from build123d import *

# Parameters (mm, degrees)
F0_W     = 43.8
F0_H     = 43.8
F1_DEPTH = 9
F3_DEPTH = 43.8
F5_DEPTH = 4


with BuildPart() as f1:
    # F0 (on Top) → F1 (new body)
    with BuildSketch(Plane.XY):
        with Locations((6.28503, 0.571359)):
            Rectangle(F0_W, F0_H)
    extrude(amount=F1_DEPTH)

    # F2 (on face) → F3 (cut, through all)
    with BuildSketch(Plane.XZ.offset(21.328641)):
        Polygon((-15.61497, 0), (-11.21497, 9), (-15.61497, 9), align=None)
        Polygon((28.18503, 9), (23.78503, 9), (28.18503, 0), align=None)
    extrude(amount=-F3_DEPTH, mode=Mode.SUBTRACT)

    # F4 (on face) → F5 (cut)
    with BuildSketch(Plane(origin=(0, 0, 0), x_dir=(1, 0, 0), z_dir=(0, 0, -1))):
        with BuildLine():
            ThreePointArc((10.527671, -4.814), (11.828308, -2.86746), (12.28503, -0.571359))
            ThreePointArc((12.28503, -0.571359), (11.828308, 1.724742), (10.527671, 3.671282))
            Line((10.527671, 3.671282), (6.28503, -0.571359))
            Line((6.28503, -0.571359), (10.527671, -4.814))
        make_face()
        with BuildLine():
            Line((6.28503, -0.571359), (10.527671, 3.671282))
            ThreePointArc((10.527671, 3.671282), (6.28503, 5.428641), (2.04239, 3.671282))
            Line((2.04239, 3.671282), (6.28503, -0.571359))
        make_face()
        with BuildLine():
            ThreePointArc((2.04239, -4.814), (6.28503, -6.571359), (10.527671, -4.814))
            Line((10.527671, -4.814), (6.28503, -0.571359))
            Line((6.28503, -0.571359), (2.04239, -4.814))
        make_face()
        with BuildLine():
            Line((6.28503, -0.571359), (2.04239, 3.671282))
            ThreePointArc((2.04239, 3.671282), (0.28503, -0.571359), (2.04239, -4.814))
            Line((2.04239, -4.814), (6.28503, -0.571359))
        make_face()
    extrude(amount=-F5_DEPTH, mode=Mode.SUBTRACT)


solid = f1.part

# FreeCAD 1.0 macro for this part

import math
import FreeCAD as App
import Part
import Sketcher
from FreeCAD import Vector
Q = App.Units.Quantity


def add_polygon(sketch, points):
    """Adds a closed chain of lines whose ends are joined by coincident constraints."""
    first, n = sketch.GeometryCount, len(points)
    for a, b in zip(points, points[1:] + points[:1]):
        sketch.addGeometry(Part.LineSegment(App.Vector(*a, 0), App.Vector(*b, 0)), False)
    for i in range(n):
        sketch.addConstraint(Sketcher.Constraint("Coincident", first + i, 2, first + (i + 1) % n, 1))

doc = App.newDocument("Part")
body = doc.addObject("PartDesign::Body", "Body")

# Sketch on XY plane
sketch1 = body.newObject("Sketcher::SketchObject", "Sketch")
sketch1.AttachmentSupport = (doc.getObject("XY_Plane"), [""])
sketch1.MapMode = "FlatFace"
add_polygon(sketch1, [(-16, 22), (-16, -21), (28, -21), (28, 22)])  # lines 0-3
sketch1.addConstraint([
    Sketcher.Constraint("Vertical", 0),
    Sketcher.Constraint("Horizontal", 1),
    Sketcher.Constraint("Vertical", 2),
    Sketcher.Constraint("Horizontal", 3),
    Sketcher.Constraint("Equal", 3, 0),
    Sketcher.Constraint("DistanceX", 1, 1, 1, 2, Q("43.8 mm")),
    Sketcher.Constraint("DistanceX", 0, 2, -1, 1, Q("15.61497 mm")),
    Sketcher.Constraint("DistanceY", 0, 2, -1, 1, Q("21.328641 mm")),
])
pad1 = body.newObject("PartDesign::Pad", "Pad")
pad1.Profile = sketch1
pad1.Length = 9

# Sketch on XZ plane
sketch2 = body.newObject("Sketcher::SketchObject", "Sketch001")
sketch2.AttachmentSupport = (doc.getObject("XZ_Plane"), [""])
sketch2.MapMode = "FlatFace"
sketch2.AttachmentOffset = App.Placement(Vector(0, 0, 21.328641), App.Rotation())
add_polygon(sketch2, [(-15.6, 0), (-11.2, 9), (-15.6, 9)])  # lines 0-2
add_polygon(sketch2, [(28.2, 9), (23.8, 9), (28.2, 0)])  # lines 3-5
sketch2.addConstraint([
    Sketcher.Constraint("Horizontal", 1),
    Sketcher.Constraint("Vertical", 2),
    Sketcher.Constraint("Horizontal", 3),
    Sketcher.Constraint("Vertical", 5),
    Sketcher.Constraint("PointOnObject", 2, 2, -1),
    Sketcher.Constraint("PointOnObject", 4, 2, -1),
    Sketcher.Constraint("Horizontal", 1, 2, 3, 2),
    Sketcher.Constraint("Equal", 1, 3),
    Sketcher.Constraint("DistanceY", 2, 2, 2, 1, Q("9 mm")),
    Sketcher.Constraint("DistanceX", 1, 2, 1, 1, Q("4.4 mm")),
    Sketcher.Constraint("DistanceX", 0, 2, 3, 2, Q("35 mm")),
    Sketcher.Constraint("DistanceX", 0, 2, -1, 1, Q("11.21497 mm")),
])
pocket1 = body.newObject("PartDesign::Pocket", "Pocket")
pocket1.Profile = sketch2
pocket1.Type = "ThroughAll"

# Sketch on XY plane
sketch3 = body.newObject("Sketcher::SketchObject", "Sketch002")
sketch3.AttachmentSupport = (doc.getObject("XY_Plane"), [""])
sketch3.MapMode = "FlatFace"
sketch3.addGeometry([
    Part.ArcOfCircle(Part.Circle(Vector(6.3, 0.6, 0), Vector(0, 0, 1), 6), math.radians(0), math.radians(45)),  # 0
    Part.ArcOfCircle(Part.Circle(Vector(6.3, 0.6, 0), Vector(0, 0, 1), 6), math.radians(-45), math.radians(0)),  # 1
    Part.ArcOfCircle(Part.Circle(Vector(6.3, 0.6, 0), Vector(0, 0, 1), 6), math.radians(-135), math.radians(-45)),  # 2
    Part.ArcOfCircle(Part.Circle(Vector(6.3, 0.6, 0), Vector(0, 0, 1), 6), math.radians(135), math.radians(225)),  # 3
    Part.ArcOfCircle(Part.Circle(Vector(6.3, 0.6, 0), Vector(0, 0, 1), 6), math.radians(45), math.radians(135)),  # 4
], False)
sketch3.addConstraint([
    Sketcher.Constraint("Tangent", 0, 1, 1, 2),
    Sketcher.Constraint("Tangent", 1, 1, 2, 2),
    Sketcher.Constraint("Tangent", 2, 1, 3, 2),
    Sketcher.Constraint("Tangent", 3, 1, 4, 2),
    Sketcher.Constraint("Tangent", 4, 1, 0, 2),
    Sketcher.Constraint("Coincident", 2, 3, 0, 3),
    Sketcher.Constraint("Horizontal", 4, 3, 0, 1),
    Sketcher.Constraint("Horizontal", 1, 1, 2, 1),
    Sketcher.Constraint("Horizontal", 3, 1, 4, 1),
    Sketcher.Constraint("Vertical", 2, 1, 3, 1),
    Sketcher.Constraint("Radius", 2, Q("6 mm")),
    Sketcher.Constraint("DistanceY", -1, 1, 3, 1, Q("4.814 mm")),
    Sketcher.Constraint("DistanceX", -1, 1, 0, 3, Q("6.285038 mm")),
    Sketcher.Constraint("DistanceY", -1, 1, 2, 3, Q("0.571359 mm")),
])
pocket2 = body.newObject("PartDesign::Pocket", "Pocket001")
pocket2.Profile = sketch3
pocket2.Length = 4
pocket2.Reversed = True

doc.recompute()
